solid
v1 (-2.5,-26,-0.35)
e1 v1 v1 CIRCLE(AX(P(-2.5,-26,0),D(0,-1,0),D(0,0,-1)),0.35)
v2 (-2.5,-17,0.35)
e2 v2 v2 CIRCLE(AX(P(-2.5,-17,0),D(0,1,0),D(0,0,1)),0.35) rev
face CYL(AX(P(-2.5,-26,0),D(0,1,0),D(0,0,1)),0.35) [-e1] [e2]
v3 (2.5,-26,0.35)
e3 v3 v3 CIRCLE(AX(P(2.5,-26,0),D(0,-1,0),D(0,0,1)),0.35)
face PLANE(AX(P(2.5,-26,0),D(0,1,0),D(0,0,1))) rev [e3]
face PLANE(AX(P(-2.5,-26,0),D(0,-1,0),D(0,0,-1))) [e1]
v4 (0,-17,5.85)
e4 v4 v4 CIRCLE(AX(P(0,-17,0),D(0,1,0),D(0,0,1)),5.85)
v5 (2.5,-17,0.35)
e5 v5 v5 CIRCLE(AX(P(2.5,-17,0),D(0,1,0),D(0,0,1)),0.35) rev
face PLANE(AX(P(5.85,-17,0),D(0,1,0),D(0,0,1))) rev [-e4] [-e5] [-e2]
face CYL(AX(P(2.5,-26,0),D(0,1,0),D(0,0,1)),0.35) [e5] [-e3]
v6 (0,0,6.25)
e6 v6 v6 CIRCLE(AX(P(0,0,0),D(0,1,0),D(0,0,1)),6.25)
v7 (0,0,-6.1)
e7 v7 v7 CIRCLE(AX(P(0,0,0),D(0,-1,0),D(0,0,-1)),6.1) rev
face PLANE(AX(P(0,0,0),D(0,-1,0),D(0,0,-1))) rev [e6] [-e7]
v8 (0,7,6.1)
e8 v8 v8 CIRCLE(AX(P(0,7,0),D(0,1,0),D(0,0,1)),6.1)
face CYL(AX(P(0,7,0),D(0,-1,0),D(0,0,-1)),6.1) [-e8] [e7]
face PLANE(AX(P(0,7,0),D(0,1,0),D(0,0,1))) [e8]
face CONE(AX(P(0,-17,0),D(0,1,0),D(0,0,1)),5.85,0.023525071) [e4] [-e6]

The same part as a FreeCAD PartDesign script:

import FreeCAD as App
import Part
import Sketcher

V = App.Vector
Q = App.Units.Quantity

doc = App.newDocument("Part")
params = doc.addObject("Spreadsheet::Sheet", "Params")
for row, (alias, value) in enumerate([
    ("sketch1_height", "17 mm"),
    ("sketch1_width", "6.25 mm"),
    ("sketch1_width2", "5.85 mm"),
    ("revolution_angle", "360 deg"),
    ("sketch2_diameter", "12.2 mm"),
    ("pad1_length", "7 mm"),
    ("sketch3_diameter", "0.7 mm"),
    ("pad2_length", "9 mm"),
], start=1):
    params.set(f"A{row}", alias)
    params.set(f"B{row}", "=" + value)
    params.setAlias(f"B{row}", alias)

body = doc.addObject("PartDesign::Body", "Body")

sketch1 = body.newObject("Sketcher::SketchObject", "Sketch")
sketch1.AttachmentSupport = (doc.getObject("XY_Plane"), [""])
sketch1.MapMode = "FlatFace"
sketch1.addGeometry([
    Part.LineSegment(V(6, 0, 0), V(0, 0, 0)),
    Part.LineSegment(V(0, 0, 0), V(0, -17, 0)),
    Part.LineSegment(V(0, -17, 0), V(6, -17, 0)),
    Part.LineSegment(V(6, -17, 0), V(6, 0, 0)),
], False)
sketch1.addConstraint([
    Sketcher.Constraint("Coincident", 0, 2, 1, 1),
    Sketcher.Constraint("Coincident", 1, 2, 2, 1),
    Sketcher.Constraint("Coincident", 2, 2, 3, 1),
    Sketcher.Constraint("Coincident", 3, 2, 0, 1),
    Sketcher.Constraint("Horizontal", 0),
    Sketcher.Constraint("Vertical", 1),
    Sketcher.Constraint("Horizontal", 2),
    Sketcher.Constraint("Coincident", 0, 2, -1, 1),
    Sketcher.Constraint("DistanceY", 1, 2, 1, 1, Q("17 mm")),
    Sketcher.Constraint("DistanceX", 0, 2, 0, 1, Q("6.25 mm")),
    Sketcher.Constraint("DistanceX", 2, 1, 2, 2, Q("5.85 mm")),
])
sketch1.setExpression("Constraints[8]", "Params.sketch1_height")
sketch1.setExpression("Constraints[9]", "Params.sketch1_width")
sketch1.setExpression("Constraints[10]", "Params.sketch1_width2")
revolution = body.newObject("PartDesign::Revolution", "Revolution")
revolution.Profile = sketch1
revolution.ReferenceAxis = (sketch1, ["V_Axis"])
revolution.setExpression("Angle", "Params.revolution_angle")

sketch2 = body.newObject("Sketcher::SketchObject", "Sketch001")
sketch2.AttachmentSupport = (doc.getObject("XZ_Plane"), [""])
sketch2.MapMode = "FlatFace"
sketch2.addGeometry(Part.Circle(V(0, 0, 0), V(0, 0, 1), 6), False)
sketch2.addConstraint([
    Sketcher.Constraint("Coincident", 0, 3, -1, 1),
    Sketcher.Constraint("Diameter", 0, Q("12.2 mm")),
])
sketch2.setExpression("Constraints[1]", "Params.sketch2_diameter")
pad1 = body.newObject("PartDesign::Pad", "Pad")
pad1.Profile = sketch2
pad1.setExpression("Length", "Params.pad1_length")
pad1.Reversed = True

sketch3 = body.newObject("Sketcher::SketchObject", "Sketch002")
sketch3.AttachmentSupport = (doc.getObject("XZ_Plane"), [""])
sketch3.MapMode = "FlatFace"
sketch3.AttachmentOffset = App.Placement(V(0, 0, 17), App.Rotation())
sketch3.addGeometry([
    Part.Circle(V(-2.5, 0, 0), V(0, 0, 1), 0.35),
    Part.Circle(V(2.5, 0, 0), V(0, 0, 1), 0.35),
], False)
sketch3.addConstraint([
    Sketcher.Constraint("Equal", 0, 1),
    Sketcher.Constraint("Symmetric", 0, 3, 1, 3, -1, 1),
    Sketcher.Constraint("PointOnObject", 0, 3, -1),
    Sketcher.Constraint("Diameter", 0, Q("0.7 mm")),
    Sketcher.Constraint("DistanceX", 0, 3, 1, 3, Q("5 mm")),
])
sketch3.setExpression("Constraints[3]", "Params.sketch3_diameter")
pad2 = body.newObject("PartDesign::Pad", "Pad001")
pad2.Profile = sketch3
pad2.setExpression("Length", "Params.pad2_length")

doc.recompute()
